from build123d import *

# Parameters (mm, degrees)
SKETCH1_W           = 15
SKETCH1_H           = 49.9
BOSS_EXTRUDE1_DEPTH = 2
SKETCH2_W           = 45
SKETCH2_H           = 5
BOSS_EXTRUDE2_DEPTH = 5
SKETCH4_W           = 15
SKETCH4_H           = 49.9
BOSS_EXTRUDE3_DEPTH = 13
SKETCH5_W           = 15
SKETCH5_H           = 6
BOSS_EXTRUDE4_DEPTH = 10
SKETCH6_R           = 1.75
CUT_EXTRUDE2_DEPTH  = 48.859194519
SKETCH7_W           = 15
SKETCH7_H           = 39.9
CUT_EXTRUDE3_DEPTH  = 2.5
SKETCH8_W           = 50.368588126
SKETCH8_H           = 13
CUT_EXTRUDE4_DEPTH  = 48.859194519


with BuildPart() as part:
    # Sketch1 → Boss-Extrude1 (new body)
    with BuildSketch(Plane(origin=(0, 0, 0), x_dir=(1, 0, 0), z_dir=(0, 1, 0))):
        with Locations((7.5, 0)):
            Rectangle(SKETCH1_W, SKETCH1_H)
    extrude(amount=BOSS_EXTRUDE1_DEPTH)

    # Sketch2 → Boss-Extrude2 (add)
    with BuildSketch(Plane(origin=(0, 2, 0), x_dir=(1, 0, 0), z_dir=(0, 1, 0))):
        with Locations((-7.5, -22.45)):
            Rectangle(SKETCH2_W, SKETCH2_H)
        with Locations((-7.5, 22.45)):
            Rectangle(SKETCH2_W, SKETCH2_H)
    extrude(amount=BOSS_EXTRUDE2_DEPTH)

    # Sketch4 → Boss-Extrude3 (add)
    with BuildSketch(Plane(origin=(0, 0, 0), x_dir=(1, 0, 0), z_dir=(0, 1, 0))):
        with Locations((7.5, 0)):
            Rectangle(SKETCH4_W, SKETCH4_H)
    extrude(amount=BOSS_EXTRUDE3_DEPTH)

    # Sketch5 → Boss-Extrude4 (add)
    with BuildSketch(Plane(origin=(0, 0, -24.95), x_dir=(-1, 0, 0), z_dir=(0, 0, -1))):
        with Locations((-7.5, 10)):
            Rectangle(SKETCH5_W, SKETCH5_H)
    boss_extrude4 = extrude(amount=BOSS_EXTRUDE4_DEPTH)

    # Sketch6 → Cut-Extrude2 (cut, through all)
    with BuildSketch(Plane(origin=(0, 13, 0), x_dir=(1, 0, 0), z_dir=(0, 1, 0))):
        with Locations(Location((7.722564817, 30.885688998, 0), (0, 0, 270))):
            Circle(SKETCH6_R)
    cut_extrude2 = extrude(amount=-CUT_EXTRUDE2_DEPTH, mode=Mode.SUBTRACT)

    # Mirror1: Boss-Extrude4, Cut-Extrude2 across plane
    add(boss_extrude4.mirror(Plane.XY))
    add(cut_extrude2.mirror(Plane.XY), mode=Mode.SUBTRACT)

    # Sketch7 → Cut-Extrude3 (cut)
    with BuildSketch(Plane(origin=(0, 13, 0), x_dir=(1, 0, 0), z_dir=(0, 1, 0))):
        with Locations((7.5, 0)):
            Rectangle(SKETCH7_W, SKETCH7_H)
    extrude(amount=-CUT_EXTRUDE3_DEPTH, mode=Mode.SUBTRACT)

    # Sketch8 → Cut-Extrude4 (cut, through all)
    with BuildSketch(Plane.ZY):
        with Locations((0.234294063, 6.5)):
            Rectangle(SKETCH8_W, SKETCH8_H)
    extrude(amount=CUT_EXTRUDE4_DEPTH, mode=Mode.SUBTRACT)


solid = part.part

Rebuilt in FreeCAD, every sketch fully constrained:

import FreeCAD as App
import Part
import Sketcher

V = App.Vector

doc = App.newDocument("Part")
body = doc.addObject("PartDesign::Body", "Body")

sketch1 = body.newObject("Sketcher::SketchObject", "Sketch")
sketch1.AttachmentSupport = (doc.getObject("XZ_Plane"), [""])
sketch1.MapMode = "FlatFace"
sketch1.addGeometry([
    Part.LineSegment(V(0, -25, 0), V(0, 25, 0)),
    Part.LineSegment(V(0, 25, 0), V(15, 25, 0)),
    Part.LineSegment(V(15, 25, 0), V(15, -25, 0)),
    Part.LineSegment(V(15, -25, 0), V(0, -25, 0)),
], False)
sketch1.addConstraint([
    Sketcher.Constraint("Coincident", 0, 2, 1, 1),
    Sketcher.Constraint("Coincident", 1, 2, 2, 1),
    Sketcher.Constraint("Coincident", 2, 2, 3, 1),
    Sketcher.Constraint("Coincident", 3, 2, 0, 1),
    Sketcher.Constraint("Vertical", 0),
    Sketcher.Constraint("Horizontal", 1),
    Sketcher.Constraint("Vertical", 2),
    Sketcher.Constraint("Horizontal", 3),
    Sketcher.Constraint("Symmetric", 0, 2, 3, 2, -1, 1),
    Sketcher.Constraint("DistanceX", 1, 1, 1, 2, 15.0),
    Sketcher.Constraint("DistanceY", 0, 1, 0, 2, 49.9),
])
pad1 = body.newObject("PartDesign::Pad", "Pad")
pad1.Profile = sketch1
pad1.Length = 2
pad1.Reversed = True

sketch2 = body.newObject("Sketcher::SketchObject", "Sketch001")
sketch2.AttachmentSupport = (doc.getObject("XZ_Plane"), [""])
sketch2.MapMode = "FlatFace"
sketch2.AttachmentOffset = App.Placement(V(0, 0, -2), App.Rotation())
sketch2.addGeometry([
    Part.LineSegment(V(-30, 20, 0), V(-30, 25, 0)),
    Part.LineSegment(V(-30, 25, 0), V(15, 25, 0)),
    Part.LineSegment(V(15, 25, 0), V(15, 20, 0)),
    Part.LineSegment(V(15, 20, 0), V(-30, 20, 0)),
    Part.LineSegment(V(-30, -25, 0), V(-30, -20, 0)),
    Part.LineSegment(V(-30, -20, 0), V(15, -20, 0)),
    Part.LineSegment(V(15, -20, 0), V(15, -25, 0)),
    Part.LineSegment(V(15, -25, 0), V(-30, -25, 0)),
], False)
sketch2.addConstraint([
    Sketcher.Constraint("Coincident", 0, 2, 1, 1),
    Sketcher.Constraint("Coincident", 1, 2, 2, 1),
    Sketcher.Constraint("Coincident", 2, 2, 3, 1),
    Sketcher.Constraint("Coincident", 3, 2, 0, 1),
    Sketcher.Constraint("Coincident", 4, 2, 5, 1),
    Sketcher.Constraint("Coincident", 5, 2, 6, 1),
    Sketcher.Constraint("Coincident", 6, 2, 7, 1),
    Sketcher.Constraint("Coincident", 7, 2, 4, 1),
    Sketcher.Constraint("Vertical", 0),
    Sketcher.Constraint("Horizontal", 1),
    Sketcher.Constraint("Vertical", 2),
    Sketcher.Constraint("Horizontal", 3),
    Sketcher.Constraint("Vertical", 4),
    Sketcher.Constraint("Horizontal", 5),
    Sketcher.Constraint("Vertical", 6),
    Sketcher.Constraint("Horizontal", 7),
    Sketcher.Constraint("Symmetric", 3, 2, 4, 2, -1),
    Sketcher.Constraint("Symmetric", 1, 2, 6, 2, -1),
    Sketcher.Constraint("DistanceX", 1, 1, 1, 2, 45.0),
    Sketcher.Constraint("DistanceY", 0, 1, 0, 2, 5.0),
    Sketcher.Constraint("DistanceX", 0, 2, -1, 1, 30.0),
    Sketcher.Constraint("DistanceY", 4, 2, 3, 2, 39.9),
])
pad2 = body.newObject("PartDesign::Pad", "Pad001")
pad2.Profile = sketch2
pad2.Length = 5
pad2.Reversed = True

sketch3 = body.newObject("Sketcher::SketchObject", "Sketch002")
sketch3.AttachmentSupport = (doc.getObject("XZ_Plane"), [""])
sketch3.MapMode = "FlatFace"
sketch3.addGeometry([
    Part.LineSegment(V(0, -25, 0), V(0, 25, 0)),
    Part.LineSegment(V(0, 25, 0), V(15, 25, 0)),
    Part.LineSegment(V(15, 25, 0), V(15, -25, 0)),
    Part.LineSegment(V(15, -25, 0), V(0, -25, 0)),
], False)
sketch3.addConstraint([
    Sketcher.Constraint("Coincident", 0, 2, 1, 1),
    Sketcher.Constraint("Coincident", 1, 2, 2, 1),
    Sketcher.Constraint("Coincident", 2, 2, 3, 1),
    Sketcher.Constraint("Coincident", 3, 2, 0, 1),
    Sketcher.Constraint("Vertical", 0),
    Sketcher.Constraint("Horizontal", 1),
    Sketcher.Constraint("Vertical", 2),
    Sketcher.Constraint("Horizontal", 3),
    Sketcher.Constraint("Symmetric", 0, 2, 3, 2, -1, 1),
    Sketcher.Constraint("DistanceX", 1, 1, 1, 2, 15.0),
    Sketcher.Constraint("DistanceY", 0, 1, 0, 2, 49.9),
])
pad3 = body.newObject("PartDesign::Pad", "Pad002")
pad3.Profile = sketch3
pad3.Length = 13
pad3.Reversed = True

sketch4 = body.newObject("Sketcher::SketchObject", "Sketch003")
sketch4.AttachmentSupport = (doc.getObject("XY_Plane"), [""])
sketch4.MapMode = "FlatFace"
sketch4.AttachmentOffset = App.Placement(V(0, 0, -24.95), App.Rotation())
sketch4.addGeometry([
    Part.LineSegment(V(15, 13, 0), V(15, 7, 0)),
    Part.LineSegment(V(15, 7, 0), V(0, 7, 0)),
    Part.LineSegment(V(0, 7, 0), V(0, 13, 0)),
    Part.LineSegment(V(0, 13, 0), V(15, 13, 0)),
], False)
sketch4.addConstraint([
    Sketcher.Constraint("Coincident", 0, 2, 1, 1),
    Sketcher.Constraint("Coincident", 1, 2, 2, 1),
    Sketcher.Constraint("Coincident", 2, 2, 3, 1),
    Sketcher.Constraint("Coincident", 3, 2, 0, 1),
    Sketcher.Constraint("Vertical", 0),
    Sketcher.Constraint("Horizontal", 1),
    Sketcher.Constraint("Vertical", 2),
    Sketcher.Constraint("Horizontal", 3),
    Sketcher.Constraint("PointOnObject", 1, 2, -2),
    Sketcher.Constraint("DistanceX", 1, 2, 1, 1, 15.0),
    Sketcher.Constraint("DistanceY", 0, 2, 0, 1, 6.0),
    Sketcher.Constraint("DistanceY", -1, 1, 0, 2, 7.0),
])
pad4 = body.newObject("PartDesign::Pad", "Pad003")
pad4.Profile = sketch4
pad4.Length = 10
pad4.Reversed = True

sketch5 = body.newObject("Sketcher::SketchObject", "Sketch004")
sketch5.AttachmentSupport = (doc.getObject("XZ_Plane"), [""])
sketch5.MapMode = "FlatFace"
sketch5.AttachmentOffset = App.Placement(V(0, 0, -13), App.Rotation())
sketch5.addGeometry(Part.Circle(V(7.7, -30.9, 0), V(0, 0, 1), 1.8), False)
sketch5.addConstraint([
    Sketcher.Constraint("Diameter", 0, 3.5),
    Sketcher.Constraint("DistanceY", 0, 3, -1, 1, 30.885689),
    Sketcher.Constraint("DistanceX", -1, 1, 0, 3, 7.722565),
])
pocket1 = body.newObject("PartDesign::Pocket", "Pocket")
pocket1.Profile = sketch5
pocket1.Type = "ThroughAll"
pocket1.Reversed = True
doc.recompute()

mirrored = body.newObject("PartDesign::Mirrored", "Mirrored")
mirrored.Originals = [pad4, pocket1]
mirrored.MirrorPlane = (doc.getObject("XY_Plane"), [""])
body.Tip = mirrored

sketch6 = body.newObject("Sketcher::SketchObject", "Sketch005")
sketch6.AttachmentSupport = (doc.getObject("XZ_Plane"), [""])
sketch6.MapMode = "FlatFace"
sketch6.AttachmentOffset = App.Placement(V(0, 0, -13), App.Rotation())
sketch6.addGeometry([
    Part.LineSegment(V(0, -20, 0), V(0, 20, 0)),
    Part.LineSegment(V(0, 20, 0), V(15, 20, 0)),
    Part.LineSegment(V(15, 20, 0), V(15, -20, 0)),
    Part.LineSegment(V(15, -20, 0), V(0, -20, 0)),
], False)
sketch6.addConstraint([
    Sketcher.Constraint("Coincident", 0, 2, 1, 1),
    Sketcher.Constraint("Coincident", 1, 2, 2, 1),
    Sketcher.Constraint("Coincident", 2, 2, 3, 1),
    Sketcher.Constraint("Coincident", 3, 2, 0, 1),
    Sketcher.Constraint("Vertical", 0),
    Sketcher.Constraint("Horizontal", 1),
    Sketcher.Constraint("Vertical", 2),
    Sketcher.Constraint("Horizontal", 3),
    Sketcher.Constraint("Symmetric", 0, 2, 3, 2, -1, 1),
    Sketcher.Constraint("DistanceX", 1, 1, 1, 2, 15.0),
    Sketcher.Constraint("DistanceY", 0, 1, 0, 2, 39.9),
])
pocket2 = body.newObject("PartDesign::Pocket", "Pocket001")
pocket2.Profile = sketch6
pocket2.Length = 2.5
pocket2.Reversed = True

sketch7 = body.newObject("Sketcher::SketchObject", "Sketch006")
sketch7.AttachmentSupport = (doc.getObject("YZ_Plane"), [""])
sketch7.MapMode = "FlatFace"
sketch7.addGeometry([
    Part.LineSegment(V(13, -25, 0), V(0, -25, 0)),
    Part.LineSegment(V(0, -25, 0), V(0, 25, 0)),
    Part.LineSegment(V(0, 25, 0), V(13, 25, 0)),
    Part.LineSegment(V(13, 25, 0), V(13, -25, 0)),
], False)
sketch7.addConstraint([
    Sketcher.Constraint("Coincident", 0, 2, 1, 1),
    Sketcher.Constraint("Coincident", 1, 2, 2, 1),
    Sketcher.Constraint("Coincident", 2, 2, 3, 1),
    Sketcher.Constraint("Coincident", 3, 2, 0, 1),
    Sketcher.Constraint("Horizontal", 0),
    Sketcher.Constraint("Vertical", 1),
    Sketcher.Constraint("Horizontal", 2),
    Sketcher.Constraint("Vertical", 3),
    Sketcher.Constraint("PointOnObject", 0, 2, -2),
    Sketcher.Constraint("DistanceX", 0, 2, 0, 1, 13.0),
    Sketcher.Constraint("DistanceY", 0, 2, -1, 1, 24.95),
    Sketcher.Constraint("DistanceY", 1, 1, 1, 2, 50.368588),
])
pocket3 = body.newObject("PartDesign::Pocket", "Pocket002")
pocket3.Profile = sketch7
pocket3.Type = "ThroughAll"

doc.recompute()
